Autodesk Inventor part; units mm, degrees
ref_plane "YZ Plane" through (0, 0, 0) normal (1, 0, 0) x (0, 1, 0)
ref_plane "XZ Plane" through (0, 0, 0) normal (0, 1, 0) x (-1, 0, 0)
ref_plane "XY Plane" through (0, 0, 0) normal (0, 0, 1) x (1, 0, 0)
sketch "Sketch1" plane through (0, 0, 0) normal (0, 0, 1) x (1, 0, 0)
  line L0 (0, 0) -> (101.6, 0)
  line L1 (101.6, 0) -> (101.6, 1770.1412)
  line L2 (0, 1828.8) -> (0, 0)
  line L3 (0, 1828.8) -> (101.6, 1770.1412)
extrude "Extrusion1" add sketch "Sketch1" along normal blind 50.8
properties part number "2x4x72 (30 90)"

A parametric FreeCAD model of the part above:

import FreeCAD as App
import Part
import Sketcher
Q = App.Units.Quantity

doc = App.newDocument("Part")
params = doc.addObject("Spreadsheet::Sheet", "Params")
for row, (alias, value) in enumerate([
    ("sketch1_width", "4 in"),
    ("sketch1_height", "72 in"),
    ("pad1_length", "2 in"),
], start=1):
    params.set(f"A{row}", alias)
    params.set(f"B{row}", "=" + value)
    params.setAlias(f"B{row}", alias)

body = doc.addObject("PartDesign::Body", "Body")

sketch1 = doc.addObject("Sketcher::SketchObject", "Sketch")
body.addObject(sketch1)
sketch1.AttachmentSupport = (doc.XY_Plane, [""])
sketch1.MapMode = "FlatFace"
sketch1.addGeometry(Part.LineSegment(App.Vector(0, 1828.8, 0), App.Vector(0, 0, 0)), False)
sketch1.addGeometry(Part.LineSegment(App.Vector(0, 0, 0), App.Vector(101.6, 0, 0)), False)
sketch1.addGeometry(Part.LineSegment(App.Vector(101.6, 0, 0), App.Vector(101.6, 1770.1412, 0)), False)
sketch1.addGeometry(Part.LineSegment(App.Vector(101.6, 1770.1412, 0), App.Vector(0, 1828.8, 0)), False)
sketch1.addConstraint(Sketcher.Constraint("Coincident", 0, 2, 1, 1))
sketch1.addConstraint(Sketcher.Constraint("Coincident", 1, 2, 2, 1))
sketch1.addConstraint(Sketcher.Constraint("Coincident", 2, 2, 3, 1))
sketch1.addConstraint(Sketcher.Constraint("Coincident", 3, 2, 0, 1))
sketch1.addConstraint(Sketcher.Constraint("Vertical", 0))
sketch1.addConstraint(Sketcher.Constraint("Horizontal", 1))
sketch1.addConstraint(Sketcher.Constraint("Vertical", 2))
sketch1.addConstraint(Sketcher.Constraint("Coincident", 0, 2, -1, 1))
sketch1.addConstraint(Sketcher.Constraint("DistanceX", 1, 1, 1, 2, Q("4 in")))
sketch1.addConstraint(Sketcher.Constraint("DistanceY", 0, 2, 0, 1, Q("72 in")))
sketch1.addConstraint(Sketcher.Constraint("Angle", 3, Q("150 deg")))
sketch1.setExpression("Constraints[8]", "Params.sketch1_width")
sketch1.setExpression("Constraints[9]", "Params.sketch1_height")
pad1 = doc.addObject("PartDesign::Pad", "Pad")
body.addObject(pad1)
pad1.Profile = sketch1
pad1.setExpression("Length", "Params.pad1_length")

doc.recompute()
